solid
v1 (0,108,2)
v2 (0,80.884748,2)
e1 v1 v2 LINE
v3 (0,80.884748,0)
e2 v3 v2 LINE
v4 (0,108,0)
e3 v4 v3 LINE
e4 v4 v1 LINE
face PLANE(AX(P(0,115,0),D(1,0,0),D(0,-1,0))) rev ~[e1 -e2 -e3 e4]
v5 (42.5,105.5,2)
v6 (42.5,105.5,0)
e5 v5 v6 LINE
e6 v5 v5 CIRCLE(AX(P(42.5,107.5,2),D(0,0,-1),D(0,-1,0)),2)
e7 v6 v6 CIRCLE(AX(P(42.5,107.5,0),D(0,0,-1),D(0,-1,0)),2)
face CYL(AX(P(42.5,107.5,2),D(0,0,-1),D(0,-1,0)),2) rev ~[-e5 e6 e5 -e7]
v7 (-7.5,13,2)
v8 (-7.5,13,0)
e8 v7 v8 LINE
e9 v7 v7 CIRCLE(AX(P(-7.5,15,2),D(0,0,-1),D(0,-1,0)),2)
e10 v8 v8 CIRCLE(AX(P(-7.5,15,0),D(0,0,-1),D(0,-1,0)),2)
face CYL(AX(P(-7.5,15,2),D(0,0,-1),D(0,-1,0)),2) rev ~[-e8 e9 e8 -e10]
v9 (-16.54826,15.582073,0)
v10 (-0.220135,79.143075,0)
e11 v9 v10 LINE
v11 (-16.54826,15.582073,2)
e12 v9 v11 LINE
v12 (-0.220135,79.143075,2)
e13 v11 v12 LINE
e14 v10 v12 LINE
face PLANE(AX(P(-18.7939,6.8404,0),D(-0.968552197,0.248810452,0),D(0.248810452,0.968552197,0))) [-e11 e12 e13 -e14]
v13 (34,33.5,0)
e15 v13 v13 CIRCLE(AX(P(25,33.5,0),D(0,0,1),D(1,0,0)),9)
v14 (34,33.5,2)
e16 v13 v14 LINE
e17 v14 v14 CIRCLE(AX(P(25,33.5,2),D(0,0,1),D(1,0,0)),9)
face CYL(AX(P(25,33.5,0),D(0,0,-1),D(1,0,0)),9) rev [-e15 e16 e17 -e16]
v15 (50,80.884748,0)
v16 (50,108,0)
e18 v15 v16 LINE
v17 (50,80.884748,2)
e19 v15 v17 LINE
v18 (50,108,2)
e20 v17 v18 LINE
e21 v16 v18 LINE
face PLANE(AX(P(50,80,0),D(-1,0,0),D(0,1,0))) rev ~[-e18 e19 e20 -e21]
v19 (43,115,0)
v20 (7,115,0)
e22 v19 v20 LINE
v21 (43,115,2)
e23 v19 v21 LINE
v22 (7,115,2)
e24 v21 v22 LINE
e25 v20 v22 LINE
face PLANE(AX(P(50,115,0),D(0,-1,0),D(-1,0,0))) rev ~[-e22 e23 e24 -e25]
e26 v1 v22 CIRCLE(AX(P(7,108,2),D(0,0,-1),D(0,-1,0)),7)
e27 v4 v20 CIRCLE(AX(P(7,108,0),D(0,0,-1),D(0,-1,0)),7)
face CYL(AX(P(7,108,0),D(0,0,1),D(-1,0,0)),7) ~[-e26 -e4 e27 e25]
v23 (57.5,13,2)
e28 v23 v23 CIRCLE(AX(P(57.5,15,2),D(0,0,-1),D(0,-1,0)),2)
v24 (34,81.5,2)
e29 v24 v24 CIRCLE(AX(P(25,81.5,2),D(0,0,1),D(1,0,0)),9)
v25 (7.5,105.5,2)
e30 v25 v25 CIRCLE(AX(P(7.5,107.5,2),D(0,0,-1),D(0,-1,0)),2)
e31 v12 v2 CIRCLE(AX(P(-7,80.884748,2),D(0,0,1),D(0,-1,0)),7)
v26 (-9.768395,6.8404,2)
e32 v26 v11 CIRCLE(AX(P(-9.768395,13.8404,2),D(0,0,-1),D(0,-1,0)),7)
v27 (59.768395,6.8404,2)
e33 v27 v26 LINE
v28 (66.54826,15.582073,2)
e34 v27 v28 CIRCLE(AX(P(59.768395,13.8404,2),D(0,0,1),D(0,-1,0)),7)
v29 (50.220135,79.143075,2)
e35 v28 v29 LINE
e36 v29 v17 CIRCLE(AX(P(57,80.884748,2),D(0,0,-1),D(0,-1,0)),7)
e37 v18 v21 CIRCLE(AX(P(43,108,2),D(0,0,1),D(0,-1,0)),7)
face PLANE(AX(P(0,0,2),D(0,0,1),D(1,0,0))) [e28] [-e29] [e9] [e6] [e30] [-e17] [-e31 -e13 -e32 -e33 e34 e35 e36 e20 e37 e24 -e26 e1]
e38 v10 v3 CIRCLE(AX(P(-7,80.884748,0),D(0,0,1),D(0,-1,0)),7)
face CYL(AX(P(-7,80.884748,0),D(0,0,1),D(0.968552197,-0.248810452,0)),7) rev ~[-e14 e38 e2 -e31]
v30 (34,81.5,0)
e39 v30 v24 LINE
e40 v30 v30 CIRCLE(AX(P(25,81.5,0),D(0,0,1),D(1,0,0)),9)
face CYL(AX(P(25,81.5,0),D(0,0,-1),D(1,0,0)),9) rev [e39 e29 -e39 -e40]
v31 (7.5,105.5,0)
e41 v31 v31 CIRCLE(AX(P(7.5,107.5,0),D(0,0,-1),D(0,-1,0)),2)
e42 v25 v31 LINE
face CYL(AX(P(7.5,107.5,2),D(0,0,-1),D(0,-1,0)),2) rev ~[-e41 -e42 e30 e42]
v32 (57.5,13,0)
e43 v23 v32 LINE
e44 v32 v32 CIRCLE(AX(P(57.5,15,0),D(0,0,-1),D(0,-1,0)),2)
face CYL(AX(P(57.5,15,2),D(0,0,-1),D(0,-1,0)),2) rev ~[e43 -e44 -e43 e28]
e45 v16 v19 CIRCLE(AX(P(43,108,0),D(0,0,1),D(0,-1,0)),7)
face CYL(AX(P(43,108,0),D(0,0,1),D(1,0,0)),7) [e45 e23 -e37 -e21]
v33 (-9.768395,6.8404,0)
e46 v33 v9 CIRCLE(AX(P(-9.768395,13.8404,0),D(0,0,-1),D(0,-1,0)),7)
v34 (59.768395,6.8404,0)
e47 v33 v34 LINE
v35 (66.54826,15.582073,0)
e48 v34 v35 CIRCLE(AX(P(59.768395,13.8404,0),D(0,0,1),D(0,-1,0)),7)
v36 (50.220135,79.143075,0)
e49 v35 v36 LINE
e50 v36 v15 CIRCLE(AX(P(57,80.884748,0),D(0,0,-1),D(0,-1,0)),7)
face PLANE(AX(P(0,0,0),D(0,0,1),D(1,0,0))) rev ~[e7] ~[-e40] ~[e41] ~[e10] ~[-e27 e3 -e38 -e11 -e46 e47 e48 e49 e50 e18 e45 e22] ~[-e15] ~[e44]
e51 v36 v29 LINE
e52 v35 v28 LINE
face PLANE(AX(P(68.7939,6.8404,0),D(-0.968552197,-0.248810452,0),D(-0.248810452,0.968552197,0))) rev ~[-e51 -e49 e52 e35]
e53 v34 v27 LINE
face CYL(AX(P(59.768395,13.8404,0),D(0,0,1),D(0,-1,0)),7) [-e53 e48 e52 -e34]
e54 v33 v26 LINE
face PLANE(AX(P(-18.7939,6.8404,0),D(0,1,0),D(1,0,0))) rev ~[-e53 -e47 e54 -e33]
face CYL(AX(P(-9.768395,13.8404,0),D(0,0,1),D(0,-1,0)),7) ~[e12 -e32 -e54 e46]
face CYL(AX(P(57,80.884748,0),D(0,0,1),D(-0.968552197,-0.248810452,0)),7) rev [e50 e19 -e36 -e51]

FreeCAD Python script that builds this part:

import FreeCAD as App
import Part
import Sketcher

V = App.Vector
Q = App.Units.Quantity


def edges_at(feature, points):
    """Names of the edges that pass closest to the given points."""
    edges = feature.Shape.Edges
    near = lambda p: min(range(len(edges)), key=lambda i: edges[i].distToShape(Part.Vertex(*p))[0])
    return sorted({f"Edge{near(p) + 1}" for p in points})


def add_polygon(sketch, points):
    """Adds a closed chain of lines whose ends are joined by coincident constraints."""
    first, n = sketch.GeometryCount, len(points)
    for a, b in zip(points, points[1:] + points[:1]):
        sketch.addGeometry(Part.LineSegment(App.Vector(*a, 0), App.Vector(*b, 0)), False)
    for i in range(n):
        sketch.addConstraint(Sketcher.Constraint("Coincident", first + i, 2, first + (i + 1) % n, 1))

doc = App.newDocument("Part")
params = doc.addObject("Spreadsheet::Sheet", "Params")
for row, (alias, value) in enumerate([
    ("sketch1_diameter", "18 mm"),
    ("sketch1_width", "50 mm"),
    ("pad1_length", "2 mm"),
    ("sketch2_diameter", "4 mm"),
    ("hole_diameter", "4 mm"),
    ("hole_depth", "8 mm"),
    ("fillet_radius", "7 mm"),
], start=1):
    params.set(f"A{row}", alias)
    params.set(f"B{row}", "=" + value)
    params.setAlias(f"B{row}", alias)

body = doc.addObject("PartDesign::Body", "Body")

sketch1 = doc.addObject("Sketcher::SketchObject", "Sketch")
body.addObject(sketch1)
sketch1.AttachmentSupport = (doc.XY_Plane, [""])
sketch1.MapMode = "FlatFace"
add_polygon(sketch1, [(-18.7939, 6.8404), (68.7939, 6.8404), (50, 80), (50, 115), (0, 115), (0, 80)])
sketch1.addGeometry(Part.Circle(V(25, 81.5, 0), V(0, 0, 1), 9), False)
sketch1.addGeometry(Part.Circle(V(25, 33.5, 0), V(0, 0, 1), 9), False)
sketch1.addConstraint(Sketcher.Constraint("Horizontal", 0))
sketch1.addConstraint(Sketcher.Constraint("Vertical", 2))
sketch1.addConstraint(Sketcher.Constraint("Horizontal", 3))
sketch1.addConstraint(Sketcher.Constraint("Vertical", 4))
sketch1.addConstraint(Sketcher.Constraint("Equal", 6, 7))
sketch1.addConstraint(Sketcher.Constraint("PointOnObject", 3, 2, -2))
sketch1.addConstraint(Sketcher.Constraint("Horizontal", 1, 2, 4, 2))
sketch1.addConstraint(Sketcher.Constraint("Vertical", 6, 3, 7, 3))
sketch1.addConstraint(Sketcher.Constraint("Equal", 1, 5))
sketch1.addConstraint(Sketcher.Constraint("Diameter", 6, Q("18 mm")))
sketch1.addConstraint(Sketcher.Constraint("DistanceX", 3, 2, 3, 1, Q("50 mm")))
sketch1.addConstraint(Sketcher.Constraint("DistanceY", -1, 1, 1, 2, Q("80 mm")))
sketch1.addConstraint(Sketcher.Constraint("DistanceY", -1, 1, 2, 2, Q("115 mm")))
sketch1.addConstraint(Sketcher.Constraint("DistanceY", 7, 3, 6, 3, Q("48 mm")))
sketch1.addConstraint(Sketcher.Constraint("DistanceY", -1, 1, 7, 3, Q("33.5 mm")))
sketch1.addConstraint(Sketcher.Constraint("DistanceX", -1, 1, 6, 3, Q("25 mm")))
sketch1.addConstraint(Sketcher.Constraint("Distance", 1, Q("75.535 mm")))
sketch1.addConstraint(Sketcher.Constraint("DistanceX", 0, 1, 0, 2, Q("87.5878 mm")))
sketch1.setExpression("Constraints[15]", "Params.sketch1_diameter")
sketch1.setExpression("Constraints[16]", "Params.sketch1_width")
pad1 = doc.addObject("PartDesign::Pad", "Pad")
body.addObject(pad1)
pad1.Profile = sketch1
pad1.setExpression("Length", "Params.pad1_length")

sketch2 = doc.addObject("Sketcher::SketchObject", "Sketch001")
body.addObject(sketch2)
sketch2.AttachmentSupport = (doc.XY_Plane, [""])
sketch2.MapMode = "FlatFace"
sketch2.AttachmentOffset = App.Placement(V(0, 0, 2), App.Rotation())
sketch2.addGeometry(Part.Circle(V(7.5, 107.5, 0), V(0, 0, 1), 2), False)
sketch2.addGeometry(Part.Circle(V(42.5, 107.5, 0), V(0, 0, 1), 2), False)
sketch2.addGeometry(Part.Circle(V(57.5, 15, 0), V(0, 0, 1), 2), False)
sketch2.addGeometry(Part.Circle(V(-7.5, 15, 0), V(0, 0, 1), 2), False)
sketch2.addConstraint(Sketcher.Constraint("Equal", 0, 1))
sketch2.addConstraint(Sketcher.Constraint("Equal", 1, 2))
sketch2.addConstraint(Sketcher.Constraint("Equal", 2, 3))
sketch2.addConstraint(Sketcher.Constraint("Horizontal", 0, 3, 1, 3))
sketch2.addConstraint(Sketcher.Constraint("Horizontal", 2, 3, 3, 3))
sketch2.addConstraint(Sketcher.Constraint("Diameter", 0, Q("4 mm")))
sketch2.addConstraint(Sketcher.Constraint("DistanceY", -1, 1, 2, 3, Q("15 mm")))
sketch2.addConstraint(Sketcher.Constraint("DistanceX", 0, 3, 1, 3, Q("35 mm")))
sketch2.addConstraint(Sketcher.Constraint("DistanceX", 1, 3, 2, 3, Q("15 mm")))
sketch2.addConstraint(Sketcher.Constraint("DistanceX", 3, 3, 2, 3, Q("65 mm")))
sketch2.addConstraint(Sketcher.Constraint("DistanceX", -1, 1, 0, 3, Q("7.5 mm")))
sketch2.addConstraint(Sketcher.Constraint("DistanceY", -1, 1, 0, 3, Q("107.5 mm")))
sketch2.setExpression("Constraints[5]", "Params.sketch2_diameter")
doc.recompute()
hole = doc.addObject("PartDesign::Hole", "Hole")
body.addObject(hole)
hole.Profile = sketch2
hole.ThreadType = "None"
hole.setExpression("Diameter", "Params.hole_diameter")
hole.DepthType = "Dimension"
hole.setExpression("Depth", "Params.hole_depth")
hole.DrillPoint = "Angled"
hole.DrillPointAngle = 118
doc.recompute()

fillet = doc.addObject("PartDesign::Fillet", "Fillet")
body.addObject(fillet)
fillet.Base = (hole, edges_at(hole, [
    (50, 115, 1),
    (0, 115, 1),
    (0, 80, 1),
    (50, 80, 1),
    (-18.794, 6.84, 1),
    (68.794, 6.84, 1),
]))
fillet.setExpression("Radius", "Params.fillet_radius")

doc.recompute()
